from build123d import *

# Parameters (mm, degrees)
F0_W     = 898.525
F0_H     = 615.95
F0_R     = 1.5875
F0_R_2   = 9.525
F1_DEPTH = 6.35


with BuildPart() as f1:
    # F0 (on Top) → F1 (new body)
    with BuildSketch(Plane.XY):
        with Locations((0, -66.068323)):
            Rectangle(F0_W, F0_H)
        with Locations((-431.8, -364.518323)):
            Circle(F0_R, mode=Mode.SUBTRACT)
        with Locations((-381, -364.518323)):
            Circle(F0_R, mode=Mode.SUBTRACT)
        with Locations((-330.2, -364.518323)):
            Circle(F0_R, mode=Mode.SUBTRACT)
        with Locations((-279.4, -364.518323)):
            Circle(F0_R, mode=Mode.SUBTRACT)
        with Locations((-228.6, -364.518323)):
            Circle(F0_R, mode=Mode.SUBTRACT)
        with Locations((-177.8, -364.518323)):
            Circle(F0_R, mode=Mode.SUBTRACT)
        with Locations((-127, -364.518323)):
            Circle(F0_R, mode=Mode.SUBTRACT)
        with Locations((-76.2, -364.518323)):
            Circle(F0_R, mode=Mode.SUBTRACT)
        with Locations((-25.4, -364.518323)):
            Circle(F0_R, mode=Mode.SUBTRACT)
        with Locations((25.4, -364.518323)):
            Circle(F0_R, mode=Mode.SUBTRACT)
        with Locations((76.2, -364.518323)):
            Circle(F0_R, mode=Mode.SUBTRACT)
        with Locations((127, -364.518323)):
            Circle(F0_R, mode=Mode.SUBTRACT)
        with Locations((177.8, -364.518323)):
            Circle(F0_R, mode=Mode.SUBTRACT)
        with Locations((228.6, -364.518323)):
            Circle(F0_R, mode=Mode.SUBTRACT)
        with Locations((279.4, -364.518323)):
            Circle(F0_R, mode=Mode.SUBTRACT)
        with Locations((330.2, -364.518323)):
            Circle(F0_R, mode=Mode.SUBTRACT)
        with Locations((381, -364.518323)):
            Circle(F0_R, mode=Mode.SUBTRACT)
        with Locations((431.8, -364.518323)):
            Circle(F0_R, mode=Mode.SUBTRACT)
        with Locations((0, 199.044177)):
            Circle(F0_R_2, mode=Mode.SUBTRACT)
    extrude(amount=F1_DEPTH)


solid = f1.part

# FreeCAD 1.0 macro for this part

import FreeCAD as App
import Part
import Sketcher
from FreeCAD import Vector
Q = App.Units.Quantity


def add_polygon(sketch, points):
    """Adds a closed chain of lines whose ends are joined by coincident constraints."""
    first, n = sketch.GeometryCount, len(points)
    for a, b in zip(points, points[1:] + points[:1]):
        sketch.addGeometry(Part.LineSegment(App.Vector(*a, 0), App.Vector(*b, 0)), False)
    for i in range(n):
        sketch.addConstraint(Sketcher.Constraint("Coincident", first + i, 2, first + (i + 1) % n, 1))

doc = App.newDocument("Part")
body = doc.addObject("PartDesign::Body", "Body")

# Sketch on XY plane
sketch1 = body.newObject("Sketcher::SketchObject", "Sketch")
sketch1.AttachmentSupport = (doc.getObject("XY_Plane"), [""])
sketch1.MapMode = "FlatFace"
add_polygon(sketch1, [(-449.3, 241.9), (-449.3, -374), (449.3, -374), (449.3, 241.9)])  # lines 0-3
sketch1.addGeometry(Part.Circle(Vector(-431.8, -364.5, 0), Vector(0, 0, 1), 1.6), False)  # 4
sketch1.addGeometry(Part.Circle(Vector(-381, -364.5, 0), Vector(0, 0, 1), 1.6), False)  # 5
sketch1.addGeometry(Part.Circle(Vector(-330.2, -364.5, 0), Vector(0, 0, 1), 1.6), False)  # 6
sketch1.addGeometry(Part.Circle(Vector(-279.4, -364.5, 0), Vector(0, 0, 1), 1.6), False)  # 7
sketch1.addGeometry(Part.Circle(Vector(-228.6, -364.5, 0), Vector(0, 0, 1), 1.6), False)  # 8
sketch1.addGeometry(Part.Circle(Vector(-177.8, -364.5, 0), Vector(0, 0, 1), 1.6), False)  # 9
sketch1.addGeometry(Part.Circle(Vector(-127, -364.5, 0), Vector(0, 0, 1), 1.6), False)  # 10
sketch1.addGeometry(Part.Circle(Vector(-76.2, -364.5, 0), Vector(0, 0, 1), 1.6), False)  # 11
sketch1.addGeometry(Part.Circle(Vector(-25.4, -364.5, 0), Vector(0, 0, 1), 1.6), False)  # 12
sketch1.addGeometry(Part.Circle(Vector(25.4, -364.5, 0), Vector(0, 0, 1), 1.6), False)  # 13
sketch1.addGeometry(Part.Circle(Vector(76.2, -364.5, 0), Vector(0, 0, 1), 1.6), False)  # 14
sketch1.addGeometry(Part.Circle(Vector(127, -364.5, 0), Vector(0, 0, 1), 1.6), False)  # 15
sketch1.addGeometry(Part.Circle(Vector(177.8, -364.5, 0), Vector(0, 0, 1), 1.6), False)  # 16
sketch1.addGeometry(Part.Circle(Vector(228.6, -364.5, 0), Vector(0, 0, 1), 1.6), False)  # 17
sketch1.addGeometry(Part.Circle(Vector(279.4, -364.5, 0), Vector(0, 0, 1), 1.6), False)  # 18
sketch1.addGeometry(Part.Circle(Vector(330.2, -364.5, 0), Vector(0, 0, 1), 1.6), False)  # 19
sketch1.addGeometry(Part.Circle(Vector(381, -364.5, 0), Vector(0, 0, 1), 1.6), False)  # 20
sketch1.addGeometry(Part.Circle(Vector(431.8, -364.5, 0), Vector(0, 0, 1), 1.6), False)  # 21
sketch1.addGeometry(Part.Circle(Vector(0, 199, 0), Vector(0, 0, 1), 9.5), False)  # 22
sketch1.addConstraint(Sketcher.Constraint("Vertical", 0))
sketch1.addConstraint(Sketcher.Constraint("Horizontal", 1))
sketch1.addConstraint(Sketcher.Constraint("Vertical", 2))
sketch1.addConstraint(Sketcher.Constraint("Horizontal", 3))
sketch1.addConstraint(Sketcher.Constraint("Equal", 4, 5))
sketch1.addConstraint(Sketcher.Constraint("Equal", 5, 6))
sketch1.addConstraint(Sketcher.Constraint("Equal", 6, 7))
sketch1.addConstraint(Sketcher.Constraint("Equal", 7, 8))
sketch1.addConstraint(Sketcher.Constraint("Equal", 8, 9))
sketch1.addConstraint(Sketcher.Constraint("Equal", 9, 10))
sketch1.addConstraint(Sketcher.Constraint("Equal", 10, 11))
sketch1.addConstraint(Sketcher.Constraint("Equal", 11, 12))
sketch1.addConstraint(Sketcher.Constraint("Equal", 12, 13))
sketch1.addConstraint(Sketcher.Constraint("Equal", 13, 14))
sketch1.addConstraint(Sketcher.Constraint("Equal", 14, 15))
sketch1.addConstraint(Sketcher.Constraint("Equal", 15, 16))
sketch1.addConstraint(Sketcher.Constraint("Equal", 16, 17))
sketch1.addConstraint(Sketcher.Constraint("Equal", 17, 18))
sketch1.addConstraint(Sketcher.Constraint("Equal", 18, 19))
sketch1.addConstraint(Sketcher.Constraint("Equal", 19, 20))
sketch1.addConstraint(Sketcher.Constraint("Equal", 20, 21))
sketch1.addConstraint(Sketcher.Constraint("Symmetric", 12, 3, 13, 3, -2))
sketch1.addConstraint(Sketcher.Constraint("Symmetric", 11, 3, 14, 3, -2))
sketch1.addConstraint(Sketcher.Constraint("Symmetric", 10, 3, 15, 3, -2))
sketch1.addConstraint(Sketcher.Constraint("Symmetric", 9, 3, 16, 3, -2))
sketch1.addConstraint(Sketcher.Constraint("Symmetric", 8, 3, 17, 3, -2))
sketch1.addConstraint(Sketcher.Constraint("Symmetric", 7, 3, 18, 3, -2))
sketch1.addConstraint(Sketcher.Constraint("Symmetric", 6, 3, 19, 3, -2))
sketch1.addConstraint(Sketcher.Constraint("Symmetric", 5, 3, 20, 3, -2))
sketch1.addConstraint(Sketcher.Constraint("Symmetric", 4, 3, 21, 3, -2))
sketch1.addConstraint(Sketcher.Constraint("PointOnObject", 22, 3, -2))
sketch1.addConstraint(Sketcher.Constraint("Horizontal", 4, 3, 5, 3))
sketch1.addConstraint(Sketcher.Constraint("Horizontal", 5, 3, 6, 3))
sketch1.addConstraint(Sketcher.Constraint("Horizontal", 6, 3, 7, 3))
sketch1.addConstraint(Sketcher.Constraint("Horizontal", 7, 3, 8, 3))
sketch1.addConstraint(Sketcher.Constraint("Horizontal", 8, 3, 9, 3))
sketch1.addConstraint(Sketcher.Constraint("Horizontal", 9, 3, 10, 3))
sketch1.addConstraint(Sketcher.Constraint("Horizontal", 10, 3, 11, 3))
sketch1.addConstraint(Sketcher.Constraint("Horizontal", 11, 3, 12, 3))
sketch1.addConstraint(Sketcher.Constraint("Diameter", 22, Q("0.75 in")))
sketch1.addConstraint(Sketcher.Constraint("Diameter", 4, Q("0.125 in")))
sketch1.addConstraint(Sketcher.Constraint("DistanceX", 4, 3, -1, 1, Q("17 in")))
sketch1.addConstraint(Sketcher.Constraint("DistanceX", 5, 3, -1, 1, Q("15 in")))
sketch1.addConstraint(Sketcher.Constraint("DistanceX", 6, 3, -1, 1, Q("13 in")))
sketch1.addConstraint(Sketcher.Constraint("DistanceX", 7, 3, -1, 1, Q("11 in")))
sketch1.addConstraint(Sketcher.Constraint("DistanceX", 8, 3, -1, 1, Q("9 in")))
sketch1.addConstraint(Sketcher.Constraint("DistanceX", 9, 3, -1, 1, Q("7 in")))
sketch1.addConstraint(Sketcher.Constraint("DistanceX", 10, 3, -1, 1, Q("5 in")))
sketch1.addConstraint(Sketcher.Constraint("DistanceX", 11, 3, -1, 1, Q("3 in")))
sketch1.addConstraint(Sketcher.Constraint("DistanceX", 12, 3, -1, 1, Q("1 in")))
sketch1.addConstraint(Sketcher.Constraint("DistanceY", 0, 2, 0, 1, Q("24.25 in")))
sketch1.addConstraint(Sketcher.Constraint("DistanceX", 1, 1, 1, 2, Q("35.375 in")))
sketch1.addConstraint(Sketcher.Constraint("DistanceX", 0, 2, -1, 1, Q("17.6875 in")))
sketch1.addConstraint(Sketcher.Constraint("DistanceY", 12, 3, 22, 3, Q("22.1875 in")))
sketch1.addConstraint(Sketcher.Constraint("DistanceY", 0, 2, 4, 3, Q("0.375 in")))
sketch1.addConstraint(Sketcher.Constraint("DistanceY", 4, 3, -1, 1, Q("364.518323 mm")))
pad1 = body.newObject("PartDesign::Pad", "Pad")
pad1.Profile = sketch1
pad1.Length = Q("0.25 in")

doc.recompute()
